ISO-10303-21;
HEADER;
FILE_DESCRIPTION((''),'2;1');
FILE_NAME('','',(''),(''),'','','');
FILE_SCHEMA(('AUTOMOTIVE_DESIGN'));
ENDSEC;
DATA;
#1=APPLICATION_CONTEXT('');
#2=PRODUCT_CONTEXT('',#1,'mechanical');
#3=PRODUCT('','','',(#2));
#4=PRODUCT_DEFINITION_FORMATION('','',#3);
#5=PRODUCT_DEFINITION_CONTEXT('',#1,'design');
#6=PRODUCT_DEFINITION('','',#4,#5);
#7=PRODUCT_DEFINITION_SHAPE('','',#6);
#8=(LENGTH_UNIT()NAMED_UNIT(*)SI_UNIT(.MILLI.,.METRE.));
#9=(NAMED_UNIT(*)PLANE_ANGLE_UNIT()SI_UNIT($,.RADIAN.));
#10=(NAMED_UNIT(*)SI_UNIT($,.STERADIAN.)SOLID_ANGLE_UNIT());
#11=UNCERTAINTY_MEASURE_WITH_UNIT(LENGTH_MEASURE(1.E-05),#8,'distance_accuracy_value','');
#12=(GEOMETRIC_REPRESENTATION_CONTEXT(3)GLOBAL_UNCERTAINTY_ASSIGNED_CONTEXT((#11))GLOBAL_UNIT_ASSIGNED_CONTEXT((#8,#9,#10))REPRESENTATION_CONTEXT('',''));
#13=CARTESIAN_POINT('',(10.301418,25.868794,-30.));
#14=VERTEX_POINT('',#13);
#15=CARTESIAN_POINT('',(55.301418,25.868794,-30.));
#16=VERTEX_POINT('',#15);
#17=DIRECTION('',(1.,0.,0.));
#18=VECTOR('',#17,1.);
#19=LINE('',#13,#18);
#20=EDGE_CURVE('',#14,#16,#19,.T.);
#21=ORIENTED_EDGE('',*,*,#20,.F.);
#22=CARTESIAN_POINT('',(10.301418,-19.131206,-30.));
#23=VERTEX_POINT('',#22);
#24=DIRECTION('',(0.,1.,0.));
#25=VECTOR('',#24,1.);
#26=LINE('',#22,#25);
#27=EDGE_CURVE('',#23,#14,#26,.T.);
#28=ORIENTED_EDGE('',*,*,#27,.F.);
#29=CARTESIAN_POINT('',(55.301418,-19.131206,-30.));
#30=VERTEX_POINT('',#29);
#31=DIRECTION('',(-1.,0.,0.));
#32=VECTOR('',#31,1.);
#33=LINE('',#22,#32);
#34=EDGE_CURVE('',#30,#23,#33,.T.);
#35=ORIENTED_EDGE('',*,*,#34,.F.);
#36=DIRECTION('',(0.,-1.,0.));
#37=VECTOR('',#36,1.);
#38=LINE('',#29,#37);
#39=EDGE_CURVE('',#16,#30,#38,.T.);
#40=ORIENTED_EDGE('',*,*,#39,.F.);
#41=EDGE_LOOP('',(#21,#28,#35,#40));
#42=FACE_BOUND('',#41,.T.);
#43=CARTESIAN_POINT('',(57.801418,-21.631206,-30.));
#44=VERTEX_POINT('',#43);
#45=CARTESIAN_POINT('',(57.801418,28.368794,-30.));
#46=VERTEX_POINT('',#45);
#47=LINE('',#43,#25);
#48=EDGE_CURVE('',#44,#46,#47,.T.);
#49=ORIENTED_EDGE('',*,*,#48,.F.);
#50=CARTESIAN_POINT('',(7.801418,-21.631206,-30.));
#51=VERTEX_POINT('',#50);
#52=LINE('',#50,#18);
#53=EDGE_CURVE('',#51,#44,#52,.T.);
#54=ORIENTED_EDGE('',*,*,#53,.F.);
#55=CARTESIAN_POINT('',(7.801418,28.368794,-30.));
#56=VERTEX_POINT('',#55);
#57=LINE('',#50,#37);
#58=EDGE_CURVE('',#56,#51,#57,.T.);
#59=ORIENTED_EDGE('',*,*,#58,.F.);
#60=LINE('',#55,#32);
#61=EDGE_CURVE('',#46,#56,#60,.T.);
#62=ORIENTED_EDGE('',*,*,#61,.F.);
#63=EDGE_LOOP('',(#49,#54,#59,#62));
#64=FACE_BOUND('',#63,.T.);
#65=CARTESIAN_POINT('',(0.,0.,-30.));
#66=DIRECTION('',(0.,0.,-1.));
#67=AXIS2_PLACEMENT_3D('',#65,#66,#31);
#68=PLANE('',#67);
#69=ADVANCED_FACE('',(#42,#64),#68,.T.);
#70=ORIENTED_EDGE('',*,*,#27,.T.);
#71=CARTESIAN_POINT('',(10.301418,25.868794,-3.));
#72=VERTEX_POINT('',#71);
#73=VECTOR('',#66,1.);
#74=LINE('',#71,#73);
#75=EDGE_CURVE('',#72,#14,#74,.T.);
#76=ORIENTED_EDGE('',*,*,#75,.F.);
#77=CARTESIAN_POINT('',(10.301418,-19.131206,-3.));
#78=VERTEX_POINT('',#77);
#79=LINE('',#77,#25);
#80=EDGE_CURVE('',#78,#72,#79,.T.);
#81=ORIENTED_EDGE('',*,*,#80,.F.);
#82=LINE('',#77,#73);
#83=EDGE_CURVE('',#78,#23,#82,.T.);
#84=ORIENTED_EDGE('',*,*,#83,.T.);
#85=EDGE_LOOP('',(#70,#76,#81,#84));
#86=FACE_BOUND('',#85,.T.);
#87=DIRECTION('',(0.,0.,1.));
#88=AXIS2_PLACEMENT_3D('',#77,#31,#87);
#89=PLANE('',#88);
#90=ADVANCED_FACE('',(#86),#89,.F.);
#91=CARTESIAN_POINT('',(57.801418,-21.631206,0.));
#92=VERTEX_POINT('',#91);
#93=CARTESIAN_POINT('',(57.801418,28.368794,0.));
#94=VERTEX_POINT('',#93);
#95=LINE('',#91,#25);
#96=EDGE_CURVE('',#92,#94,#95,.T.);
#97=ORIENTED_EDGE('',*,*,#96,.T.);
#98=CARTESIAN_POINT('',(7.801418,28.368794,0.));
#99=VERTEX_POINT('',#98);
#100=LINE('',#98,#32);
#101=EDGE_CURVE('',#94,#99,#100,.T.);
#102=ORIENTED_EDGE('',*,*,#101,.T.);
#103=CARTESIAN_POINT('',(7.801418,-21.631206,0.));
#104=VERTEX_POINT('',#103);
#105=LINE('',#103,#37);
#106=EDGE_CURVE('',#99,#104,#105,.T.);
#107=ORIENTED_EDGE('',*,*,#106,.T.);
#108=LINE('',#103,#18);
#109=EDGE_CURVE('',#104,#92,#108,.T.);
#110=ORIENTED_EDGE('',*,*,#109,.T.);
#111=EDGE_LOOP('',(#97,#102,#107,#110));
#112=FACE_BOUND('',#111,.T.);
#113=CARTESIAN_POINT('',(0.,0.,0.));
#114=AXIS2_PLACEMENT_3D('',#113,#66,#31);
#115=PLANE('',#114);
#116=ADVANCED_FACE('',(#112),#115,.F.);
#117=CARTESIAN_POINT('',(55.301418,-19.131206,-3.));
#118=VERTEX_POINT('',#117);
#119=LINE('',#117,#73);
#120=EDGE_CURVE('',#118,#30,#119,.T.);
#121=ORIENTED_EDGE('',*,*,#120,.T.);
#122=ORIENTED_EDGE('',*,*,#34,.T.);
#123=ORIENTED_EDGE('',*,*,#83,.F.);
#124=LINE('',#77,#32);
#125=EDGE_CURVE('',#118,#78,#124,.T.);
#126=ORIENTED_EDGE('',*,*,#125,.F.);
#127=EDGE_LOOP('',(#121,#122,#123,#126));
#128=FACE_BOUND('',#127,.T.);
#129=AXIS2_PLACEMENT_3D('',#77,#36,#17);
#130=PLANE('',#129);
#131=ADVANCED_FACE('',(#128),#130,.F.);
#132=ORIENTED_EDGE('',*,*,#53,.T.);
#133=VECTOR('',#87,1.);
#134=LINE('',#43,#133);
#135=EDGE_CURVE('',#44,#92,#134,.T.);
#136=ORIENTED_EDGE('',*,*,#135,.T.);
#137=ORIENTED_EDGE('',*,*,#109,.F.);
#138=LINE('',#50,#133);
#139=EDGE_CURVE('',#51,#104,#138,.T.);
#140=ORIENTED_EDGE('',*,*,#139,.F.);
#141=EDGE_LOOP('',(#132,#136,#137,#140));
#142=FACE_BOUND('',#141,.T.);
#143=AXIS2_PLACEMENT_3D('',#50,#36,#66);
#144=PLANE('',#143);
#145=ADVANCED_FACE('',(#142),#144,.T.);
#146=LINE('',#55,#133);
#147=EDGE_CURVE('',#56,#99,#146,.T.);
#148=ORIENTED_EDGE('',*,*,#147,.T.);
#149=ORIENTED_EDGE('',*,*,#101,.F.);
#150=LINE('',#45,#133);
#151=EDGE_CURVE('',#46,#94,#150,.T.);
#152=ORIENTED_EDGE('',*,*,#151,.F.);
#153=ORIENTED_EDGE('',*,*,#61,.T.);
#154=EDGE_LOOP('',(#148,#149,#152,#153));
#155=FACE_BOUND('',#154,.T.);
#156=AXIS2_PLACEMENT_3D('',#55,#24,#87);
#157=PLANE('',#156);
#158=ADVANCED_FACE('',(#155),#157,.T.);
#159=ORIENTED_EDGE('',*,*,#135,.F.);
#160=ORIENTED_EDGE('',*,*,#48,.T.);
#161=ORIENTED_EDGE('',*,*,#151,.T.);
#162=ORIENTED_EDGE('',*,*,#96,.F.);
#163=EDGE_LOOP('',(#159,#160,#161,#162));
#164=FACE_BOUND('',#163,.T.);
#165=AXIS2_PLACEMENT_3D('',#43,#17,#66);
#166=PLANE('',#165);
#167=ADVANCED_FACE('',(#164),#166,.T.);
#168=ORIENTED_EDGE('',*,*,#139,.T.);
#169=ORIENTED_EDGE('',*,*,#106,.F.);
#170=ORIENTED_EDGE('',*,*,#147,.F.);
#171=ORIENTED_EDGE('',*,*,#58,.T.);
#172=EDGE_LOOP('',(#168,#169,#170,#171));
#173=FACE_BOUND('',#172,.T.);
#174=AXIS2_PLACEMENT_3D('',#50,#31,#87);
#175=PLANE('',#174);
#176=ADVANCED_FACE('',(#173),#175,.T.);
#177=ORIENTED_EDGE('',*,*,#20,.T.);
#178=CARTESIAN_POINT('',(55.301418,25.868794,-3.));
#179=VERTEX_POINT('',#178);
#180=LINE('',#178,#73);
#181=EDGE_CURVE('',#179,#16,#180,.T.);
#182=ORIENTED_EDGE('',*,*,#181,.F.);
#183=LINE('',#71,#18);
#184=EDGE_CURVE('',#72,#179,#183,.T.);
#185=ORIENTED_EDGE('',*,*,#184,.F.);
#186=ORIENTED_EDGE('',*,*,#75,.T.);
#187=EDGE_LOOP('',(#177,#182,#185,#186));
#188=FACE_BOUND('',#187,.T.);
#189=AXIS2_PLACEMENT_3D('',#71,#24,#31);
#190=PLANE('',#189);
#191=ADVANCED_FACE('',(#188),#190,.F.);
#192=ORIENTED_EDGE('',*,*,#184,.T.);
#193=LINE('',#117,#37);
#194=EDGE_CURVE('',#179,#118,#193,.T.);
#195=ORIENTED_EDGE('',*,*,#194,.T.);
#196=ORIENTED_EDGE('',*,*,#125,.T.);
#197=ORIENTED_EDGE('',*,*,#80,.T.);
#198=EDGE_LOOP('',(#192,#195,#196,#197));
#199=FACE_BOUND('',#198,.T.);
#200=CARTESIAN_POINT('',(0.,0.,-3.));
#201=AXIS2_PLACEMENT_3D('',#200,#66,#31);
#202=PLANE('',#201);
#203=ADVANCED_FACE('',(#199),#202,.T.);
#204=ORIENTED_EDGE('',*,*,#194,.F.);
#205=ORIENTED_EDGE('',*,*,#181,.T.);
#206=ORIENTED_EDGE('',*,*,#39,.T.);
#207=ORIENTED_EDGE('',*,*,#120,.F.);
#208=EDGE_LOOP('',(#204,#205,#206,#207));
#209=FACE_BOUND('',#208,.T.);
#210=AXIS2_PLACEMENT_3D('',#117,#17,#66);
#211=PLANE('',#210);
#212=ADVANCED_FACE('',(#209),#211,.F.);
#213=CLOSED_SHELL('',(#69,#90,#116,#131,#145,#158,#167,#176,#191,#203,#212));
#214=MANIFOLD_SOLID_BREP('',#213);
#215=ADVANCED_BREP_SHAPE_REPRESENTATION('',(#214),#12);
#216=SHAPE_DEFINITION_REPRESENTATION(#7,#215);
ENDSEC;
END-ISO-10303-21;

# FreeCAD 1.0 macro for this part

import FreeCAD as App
import Part
import Sketcher
from FreeCAD import Vector

doc = App.newDocument("Part")
body = doc.addObject("PartDesign::Body", "Body")

sketch1 = body.newObject("Sketcher::SketchObject", "Sketch")
sketch1.AttachmentSupport = (doc.getObject("XY_Plane"), [""])
sketch1.MapMode = "FlatFace"
sketch1.addGeometry([
    Part.LineSegment(Vector(8, 28, 0), Vector(8, -22, 0)),
    Part.LineSegment(Vector(8, -22, 0), Vector(58, -22, 0)),
    Part.LineSegment(Vector(58, -22, 0), Vector(58, 28, 0)),
    Part.LineSegment(Vector(58, 28, 0), Vector(8, 28, 0)),
], False)
sketch1.addConstraint([
    Sketcher.Constraint("Coincident", 0, 2, 1, 1),
    Sketcher.Constraint("Coincident", 1, 2, 2, 1),
    Sketcher.Constraint("Coincident", 2, 2, 3, 1),
    Sketcher.Constraint("Coincident", 3, 2, 0, 1),
    Sketcher.Constraint("Vertical", 0),
    Sketcher.Constraint("Horizontal", 1),
    Sketcher.Constraint("Vertical", 2),
    Sketcher.Constraint("Horizontal", 3),
    Sketcher.Constraint("Equal", 3, 0),
    Sketcher.Constraint("DistanceX", 1, 1, 1, 2, 50.0),
    Sketcher.Constraint("DistanceX", -1, 1, 0, 2, 7.801418),
    Sketcher.Constraint("DistanceY", 0, 2, -1, 1, 21.631206),
])
pad1 = body.newObject("PartDesign::Pad", "Pad")
pad1.Profile = sketch1
pad1.Length = 30
pad1.Reversed = True

sketch2 = body.newObject("Sketcher::SketchObject", "Sketch001")
sketch2.AttachmentSupport = (doc.getObject("XY_Plane"), [""])
sketch2.MapMode = "FlatFace"
sketch2.AttachmentOffset = App.Placement(Vector(0, 0, -30), App.Rotation())
sketch2.addGeometry([
    Part.LineSegment(Vector(55, 26, 0), Vector(55, -19, 0)),
    Part.LineSegment(Vector(55, -19, 0), Vector(10, -19, 0)),
    Part.LineSegment(Vector(10, -19, 0), Vector(10, 26, 0)),
    Part.LineSegment(Vector(10, 26, 0), Vector(55, 26, 0)),
], False)
sketch2.addConstraint([
    Sketcher.Constraint("Coincident", 0, 2, 1, 1),
    Sketcher.Constraint("Coincident", 1, 2, 2, 1),
    Sketcher.Constraint("Coincident", 2, 2, 3, 1),
    Sketcher.Constraint("Coincident", 3, 2, 0, 1),
    Sketcher.Constraint("Vertical", 0),
    Sketcher.Constraint("Horizontal", 1),
    Sketcher.Constraint("Vertical", 2),
    Sketcher.Constraint("Horizontal", 3),
    Sketcher.Constraint("Equal", 3, 0),
    Sketcher.Constraint("DistanceX", 1, 2, 1, 1, 45.0),
    Sketcher.Constraint("DistanceX", -1, 1, 0, 2, 55.301418),
    Sketcher.Constraint("DistanceY", 0, 2, -1, 1, 19.131206),
])
pocket1 = body.newObject("PartDesign::Pocket", "Pocket")
pocket1.Profile = sketch2
pocket1.Length = 27
pocket1.Reversed = True

doc.recompute()
